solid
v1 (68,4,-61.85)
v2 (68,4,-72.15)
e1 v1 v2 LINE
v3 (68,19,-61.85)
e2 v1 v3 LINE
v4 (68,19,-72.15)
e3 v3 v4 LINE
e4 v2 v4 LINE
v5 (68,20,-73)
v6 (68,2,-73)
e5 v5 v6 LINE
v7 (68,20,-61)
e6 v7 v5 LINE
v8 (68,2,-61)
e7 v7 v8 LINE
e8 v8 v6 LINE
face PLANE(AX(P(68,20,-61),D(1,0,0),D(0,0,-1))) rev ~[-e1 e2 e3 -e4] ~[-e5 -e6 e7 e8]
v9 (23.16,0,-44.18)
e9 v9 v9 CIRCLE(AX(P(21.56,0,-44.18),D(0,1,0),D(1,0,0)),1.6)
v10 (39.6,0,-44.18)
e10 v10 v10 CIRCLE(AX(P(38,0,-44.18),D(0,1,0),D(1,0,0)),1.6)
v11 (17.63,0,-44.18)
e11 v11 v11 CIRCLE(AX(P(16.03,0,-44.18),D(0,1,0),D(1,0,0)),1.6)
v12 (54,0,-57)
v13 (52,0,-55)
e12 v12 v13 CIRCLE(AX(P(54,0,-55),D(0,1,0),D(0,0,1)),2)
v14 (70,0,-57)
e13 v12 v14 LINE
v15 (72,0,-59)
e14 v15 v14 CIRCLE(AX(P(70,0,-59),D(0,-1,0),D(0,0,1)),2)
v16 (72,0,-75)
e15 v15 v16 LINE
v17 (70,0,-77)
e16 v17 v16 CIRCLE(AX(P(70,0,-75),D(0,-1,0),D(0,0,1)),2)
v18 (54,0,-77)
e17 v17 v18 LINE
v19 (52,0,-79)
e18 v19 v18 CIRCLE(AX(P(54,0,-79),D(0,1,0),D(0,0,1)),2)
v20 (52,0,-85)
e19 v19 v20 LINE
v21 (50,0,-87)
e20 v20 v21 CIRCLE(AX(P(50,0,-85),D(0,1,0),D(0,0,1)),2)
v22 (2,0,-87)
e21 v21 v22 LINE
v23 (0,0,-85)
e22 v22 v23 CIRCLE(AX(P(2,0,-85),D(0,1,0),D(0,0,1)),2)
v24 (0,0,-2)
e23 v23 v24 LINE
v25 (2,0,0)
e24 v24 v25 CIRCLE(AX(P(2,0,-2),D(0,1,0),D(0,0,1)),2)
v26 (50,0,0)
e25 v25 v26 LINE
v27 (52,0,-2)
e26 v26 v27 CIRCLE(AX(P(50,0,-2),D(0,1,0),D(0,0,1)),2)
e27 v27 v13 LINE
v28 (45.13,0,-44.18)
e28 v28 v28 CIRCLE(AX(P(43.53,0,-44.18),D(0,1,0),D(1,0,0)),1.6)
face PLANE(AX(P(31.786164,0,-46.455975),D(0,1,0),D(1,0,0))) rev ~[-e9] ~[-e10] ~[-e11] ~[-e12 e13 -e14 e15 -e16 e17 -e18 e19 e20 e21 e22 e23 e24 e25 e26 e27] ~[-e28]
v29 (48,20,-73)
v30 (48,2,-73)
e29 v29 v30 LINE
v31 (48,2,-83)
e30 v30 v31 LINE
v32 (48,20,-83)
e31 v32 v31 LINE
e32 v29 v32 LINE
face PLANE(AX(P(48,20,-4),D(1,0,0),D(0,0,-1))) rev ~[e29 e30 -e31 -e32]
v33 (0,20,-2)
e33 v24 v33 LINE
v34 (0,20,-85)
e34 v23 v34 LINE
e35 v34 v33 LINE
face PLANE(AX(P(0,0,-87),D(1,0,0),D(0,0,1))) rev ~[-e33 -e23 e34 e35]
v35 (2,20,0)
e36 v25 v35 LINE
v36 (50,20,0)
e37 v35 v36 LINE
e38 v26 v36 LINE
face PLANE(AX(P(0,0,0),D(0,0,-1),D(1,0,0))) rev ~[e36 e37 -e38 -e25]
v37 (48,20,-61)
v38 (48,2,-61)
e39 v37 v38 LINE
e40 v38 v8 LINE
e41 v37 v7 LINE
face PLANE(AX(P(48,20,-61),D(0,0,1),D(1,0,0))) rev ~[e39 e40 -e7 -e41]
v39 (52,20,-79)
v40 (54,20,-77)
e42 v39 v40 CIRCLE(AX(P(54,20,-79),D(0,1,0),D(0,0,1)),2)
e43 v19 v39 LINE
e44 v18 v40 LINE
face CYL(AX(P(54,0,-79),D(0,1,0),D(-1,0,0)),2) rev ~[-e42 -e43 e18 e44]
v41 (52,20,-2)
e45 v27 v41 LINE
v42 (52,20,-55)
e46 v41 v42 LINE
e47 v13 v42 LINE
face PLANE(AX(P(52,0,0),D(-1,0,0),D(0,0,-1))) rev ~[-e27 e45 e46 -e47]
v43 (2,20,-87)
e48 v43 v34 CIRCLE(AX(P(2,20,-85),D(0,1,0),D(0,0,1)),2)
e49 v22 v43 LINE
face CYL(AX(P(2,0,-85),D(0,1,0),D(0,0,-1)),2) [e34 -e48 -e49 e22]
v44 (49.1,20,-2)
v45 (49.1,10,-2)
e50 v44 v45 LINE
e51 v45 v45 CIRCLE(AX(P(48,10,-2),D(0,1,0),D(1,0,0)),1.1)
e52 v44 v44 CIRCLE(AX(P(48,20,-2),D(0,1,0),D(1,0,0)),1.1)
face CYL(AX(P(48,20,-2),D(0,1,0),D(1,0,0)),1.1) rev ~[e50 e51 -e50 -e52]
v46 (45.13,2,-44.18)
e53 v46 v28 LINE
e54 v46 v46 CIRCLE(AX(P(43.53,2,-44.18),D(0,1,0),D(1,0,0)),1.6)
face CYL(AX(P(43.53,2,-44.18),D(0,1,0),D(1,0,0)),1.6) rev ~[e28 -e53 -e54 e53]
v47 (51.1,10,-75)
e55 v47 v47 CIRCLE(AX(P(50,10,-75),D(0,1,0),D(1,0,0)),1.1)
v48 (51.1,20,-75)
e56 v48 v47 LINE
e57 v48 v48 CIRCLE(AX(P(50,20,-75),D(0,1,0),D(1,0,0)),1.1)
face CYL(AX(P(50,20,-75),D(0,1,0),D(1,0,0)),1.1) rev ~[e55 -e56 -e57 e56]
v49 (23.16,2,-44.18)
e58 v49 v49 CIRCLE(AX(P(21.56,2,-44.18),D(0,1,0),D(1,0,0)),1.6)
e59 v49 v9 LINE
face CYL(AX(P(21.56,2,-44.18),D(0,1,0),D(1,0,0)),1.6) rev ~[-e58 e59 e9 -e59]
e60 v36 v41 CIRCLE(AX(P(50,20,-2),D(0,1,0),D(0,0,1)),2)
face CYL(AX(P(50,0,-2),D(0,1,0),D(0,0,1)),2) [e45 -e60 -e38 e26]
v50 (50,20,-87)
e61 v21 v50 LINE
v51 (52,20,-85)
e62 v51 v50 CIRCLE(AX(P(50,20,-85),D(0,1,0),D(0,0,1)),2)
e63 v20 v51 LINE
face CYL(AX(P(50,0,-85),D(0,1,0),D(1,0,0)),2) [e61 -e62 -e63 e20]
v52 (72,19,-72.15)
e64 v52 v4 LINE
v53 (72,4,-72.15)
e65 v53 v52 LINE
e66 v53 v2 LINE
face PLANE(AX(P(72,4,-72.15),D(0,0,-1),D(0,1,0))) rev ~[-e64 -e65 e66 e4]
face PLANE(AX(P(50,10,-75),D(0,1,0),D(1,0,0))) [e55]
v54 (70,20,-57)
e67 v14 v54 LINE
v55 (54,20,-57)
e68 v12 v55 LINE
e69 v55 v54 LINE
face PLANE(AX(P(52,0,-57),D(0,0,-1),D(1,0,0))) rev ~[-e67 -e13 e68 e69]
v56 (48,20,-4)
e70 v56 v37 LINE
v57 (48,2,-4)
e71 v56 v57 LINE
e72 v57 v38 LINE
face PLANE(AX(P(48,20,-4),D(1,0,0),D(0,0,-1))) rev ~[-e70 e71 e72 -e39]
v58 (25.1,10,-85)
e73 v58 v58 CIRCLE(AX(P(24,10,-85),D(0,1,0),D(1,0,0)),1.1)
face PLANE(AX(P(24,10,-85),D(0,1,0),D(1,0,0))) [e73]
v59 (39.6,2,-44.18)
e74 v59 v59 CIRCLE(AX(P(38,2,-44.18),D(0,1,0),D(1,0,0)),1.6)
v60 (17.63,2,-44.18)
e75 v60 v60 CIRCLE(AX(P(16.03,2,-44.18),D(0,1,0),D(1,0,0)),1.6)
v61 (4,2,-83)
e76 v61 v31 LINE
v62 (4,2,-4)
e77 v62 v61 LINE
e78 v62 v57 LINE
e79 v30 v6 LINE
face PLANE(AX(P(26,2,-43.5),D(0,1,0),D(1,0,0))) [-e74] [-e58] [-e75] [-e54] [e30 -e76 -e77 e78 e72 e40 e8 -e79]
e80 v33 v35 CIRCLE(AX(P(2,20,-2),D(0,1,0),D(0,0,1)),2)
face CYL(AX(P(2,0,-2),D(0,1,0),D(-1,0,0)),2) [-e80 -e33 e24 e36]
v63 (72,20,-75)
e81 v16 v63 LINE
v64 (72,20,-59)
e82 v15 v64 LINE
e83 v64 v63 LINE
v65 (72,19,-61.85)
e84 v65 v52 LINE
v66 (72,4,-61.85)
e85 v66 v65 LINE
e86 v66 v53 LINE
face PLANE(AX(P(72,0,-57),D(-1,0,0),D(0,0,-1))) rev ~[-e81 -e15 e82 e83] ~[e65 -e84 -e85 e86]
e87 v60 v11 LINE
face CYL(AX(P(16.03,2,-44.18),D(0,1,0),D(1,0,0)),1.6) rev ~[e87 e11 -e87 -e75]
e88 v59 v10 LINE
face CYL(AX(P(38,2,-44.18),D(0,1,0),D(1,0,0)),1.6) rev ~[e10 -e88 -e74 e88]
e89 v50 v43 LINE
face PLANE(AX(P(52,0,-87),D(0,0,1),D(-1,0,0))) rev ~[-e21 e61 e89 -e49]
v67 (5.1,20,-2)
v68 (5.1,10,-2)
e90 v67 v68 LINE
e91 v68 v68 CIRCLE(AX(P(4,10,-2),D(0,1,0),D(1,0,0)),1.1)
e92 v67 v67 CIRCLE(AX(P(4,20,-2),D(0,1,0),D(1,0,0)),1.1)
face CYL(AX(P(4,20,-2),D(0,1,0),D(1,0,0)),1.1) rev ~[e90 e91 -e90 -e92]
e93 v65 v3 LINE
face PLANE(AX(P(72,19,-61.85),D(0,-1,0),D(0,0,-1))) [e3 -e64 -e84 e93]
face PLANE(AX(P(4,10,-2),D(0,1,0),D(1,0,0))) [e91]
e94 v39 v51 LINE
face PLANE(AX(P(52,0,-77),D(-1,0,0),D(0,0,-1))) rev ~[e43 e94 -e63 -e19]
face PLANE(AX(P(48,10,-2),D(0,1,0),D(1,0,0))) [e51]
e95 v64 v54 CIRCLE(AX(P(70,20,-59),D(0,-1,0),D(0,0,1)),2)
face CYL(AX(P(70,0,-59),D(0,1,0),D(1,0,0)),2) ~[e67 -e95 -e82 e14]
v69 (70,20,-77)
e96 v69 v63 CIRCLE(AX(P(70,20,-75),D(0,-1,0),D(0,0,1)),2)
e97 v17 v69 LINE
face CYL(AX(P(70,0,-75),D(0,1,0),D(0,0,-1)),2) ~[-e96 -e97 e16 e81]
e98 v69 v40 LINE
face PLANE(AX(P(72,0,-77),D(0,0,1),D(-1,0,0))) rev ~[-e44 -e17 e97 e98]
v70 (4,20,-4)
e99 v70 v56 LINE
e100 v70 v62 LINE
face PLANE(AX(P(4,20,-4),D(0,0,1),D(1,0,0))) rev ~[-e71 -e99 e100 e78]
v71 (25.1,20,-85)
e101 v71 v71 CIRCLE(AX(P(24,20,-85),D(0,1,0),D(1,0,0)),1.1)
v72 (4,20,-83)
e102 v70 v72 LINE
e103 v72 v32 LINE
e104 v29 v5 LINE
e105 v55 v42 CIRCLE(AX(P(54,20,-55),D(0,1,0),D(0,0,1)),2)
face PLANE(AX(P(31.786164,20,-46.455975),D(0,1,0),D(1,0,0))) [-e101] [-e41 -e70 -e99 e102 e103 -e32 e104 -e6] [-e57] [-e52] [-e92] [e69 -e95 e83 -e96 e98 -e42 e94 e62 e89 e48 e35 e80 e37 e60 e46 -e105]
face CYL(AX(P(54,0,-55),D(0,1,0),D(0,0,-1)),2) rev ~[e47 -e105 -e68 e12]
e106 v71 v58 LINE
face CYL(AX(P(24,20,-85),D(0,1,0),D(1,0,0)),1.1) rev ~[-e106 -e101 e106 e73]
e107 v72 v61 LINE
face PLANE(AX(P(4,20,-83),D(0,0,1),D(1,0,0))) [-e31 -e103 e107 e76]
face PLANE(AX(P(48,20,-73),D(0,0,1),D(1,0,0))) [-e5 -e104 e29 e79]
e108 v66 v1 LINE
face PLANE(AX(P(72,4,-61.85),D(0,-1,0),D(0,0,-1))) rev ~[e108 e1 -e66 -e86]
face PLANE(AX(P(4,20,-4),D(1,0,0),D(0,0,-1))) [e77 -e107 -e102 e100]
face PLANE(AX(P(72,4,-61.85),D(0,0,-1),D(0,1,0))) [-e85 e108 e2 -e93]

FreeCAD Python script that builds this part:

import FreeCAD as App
import Part
import Sketcher

V = App.Vector
Q = App.Units.Quantity


def edges_at(feature, points):
    """Names of the edges that pass closest to the given points."""
    edges = feature.Shape.Edges
    near = lambda p: min(range(len(edges)), key=lambda i: edges[i].distToShape(Part.Vertex(*p))[0])
    return sorted({f"Edge{near(p) + 1}" for p in points})


def add_polygon(sketch, points):
    """Adds a closed chain of lines whose ends are joined by coincident constraints."""
    first, n = sketch.GeometryCount, len(points)
    for a, b in zip(points, points[1:] + points[:1]):
        sketch.addGeometry(Part.LineSegment(App.Vector(*a, 0), App.Vector(*b, 0)), False)
    for i in range(n):
        sketch.addConstraint(Sketcher.Constraint("Coincident", first + i, 2, first + (i + 1) % n, 1))

doc = App.newDocument("Part")
body = doc.addObject("PartDesign::Body", "Body")

# Sketch on XZ plane
sketch1 = body.newObject("Sketcher::SketchObject", "Sketch")
sketch1.AttachmentSupport = (doc.getObject("XZ_Plane"), [""])
sketch1.MapMode = "FlatFace"
add_polygon(sketch1, [(52, -77), (52, -87), (0, -87), (0, 0), (52, 0), (52, -57), (72, -57), (72, -77)])  # lines 0-7
sketch1.addConstraint([
    Sketcher.Constraint("Vertical", 0),
    Sketcher.Constraint("Horizontal", 1),
    Sketcher.Constraint("Vertical", 2),
    Sketcher.Constraint("Horizontal", 3),
    Sketcher.Constraint("Vertical", 4),
    Sketcher.Constraint("Horizontal", 5),
    Sketcher.Constraint("Vertical", 6),
    Sketcher.Constraint("Horizontal", 7),
    Sketcher.Constraint("Coincident", 2, 2, -1, 1),
    Sketcher.Constraint("Vertical", 0, 2, 3, 2),
    Sketcher.Constraint("Equal", 7, 6),
    Sketcher.Constraint("DistanceX", 1, 2, 1, 1, Q("52 mm")),
    Sketcher.Constraint("DistanceX", 5, 1, 5, 2, Q("20 mm")),
    Sketcher.Constraint("DistanceY", 0, 2, 0, 1, Q("10 mm")),
    Sketcher.Constraint("DistanceY", 2, 1, 2, 2, Q("87 mm")),
])
pad1 = body.newObject("PartDesign::Pad", "Pad")
pad1.Profile = sketch1
pad1.Length = 20
pad1.Reversed = True

# Sketch on XZ plane
sketch2 = body.newObject("Sketcher::SketchObject", "Sketch001")
sketch2.AttachmentSupport = (doc.getObject("XZ_Plane"), [""])
sketch2.MapMode = "FlatFace"
sketch2.AttachmentOffset = App.Placement(V(0, 0, -20), App.Rotation())
add_polygon(sketch2, [(4, -83), (4, -4), (48, -4), (48, -83)])  # lines 0-3
sketch2.addConstraint([
    Sketcher.Constraint("Vertical", 0),
    Sketcher.Constraint("Horizontal", 1),
    Sketcher.Constraint("Vertical", 2),
    Sketcher.Constraint("Horizontal", 3),
    Sketcher.Constraint("DistanceX", 1, 1, 1, 2, Q("44 mm")),
    Sketcher.Constraint("DistanceY", 0, 1, 0, 2, Q("79 mm")),
    Sketcher.Constraint("DistanceX", -1, 1, 0, 2, Q("4 mm")),
    Sketcher.Constraint("DistanceY", 0, 2, -1, 1, Q("4 mm")),
])
pocket1 = body.newObject("PartDesign::Pocket", "Pocket")
pocket1.Profile = sketch2
pocket1.Length = 18
pocket1.Reversed = True

# Sketch on XZ plane
sketch3 = body.newObject("Sketcher::SketchObject", "Sketch002")
sketch3.AttachmentSupport = (doc.getObject("XZ_Plane"), [""])
sketch3.MapMode = "FlatFace"
sketch3.AttachmentOffset = App.Placement(V(0, 0, -20), App.Rotation())
add_polygon(sketch3, [(48, -73), (48, -61), (68, -61), (68, -73)])  # lines 0-3
sketch3.addConstraint([
    Sketcher.Constraint("Vertical", 0),
    Sketcher.Constraint("Horizontal", 1),
    Sketcher.Constraint("Vertical", 2),
    Sketcher.Constraint("Horizontal", 3),
    Sketcher.Constraint("DistanceX", 1, 1, 1, 2, Q("20 mm")),
    Sketcher.Constraint("DistanceY", 0, 1, 0, 2, Q("12 mm")),
    Sketcher.Constraint("DistanceX", -1, 1, 0, 2, Q("48 mm")),
    Sketcher.Constraint("DistanceY", 0, 2, -1, 1, Q("61 mm")),
])
pocket2 = body.newObject("PartDesign::Pocket", "Pocket001")
pocket2.Profile = sketch3
pocket2.Length = 18
pocket2.Reversed = True

# Sketch on XZ plane
sketch4 = body.newObject("Sketcher::SketchObject", "Sketch003")
sketch4.AttachmentSupport = (doc.getObject("XZ_Plane"), [""])
sketch4.MapMode = "FlatFace"
sketch4.AttachmentOffset = App.Placement(V(0, 0, -20), App.Rotation())
sketch4.addGeometry([
    Part.Circle(V(4, -2, 0), V(0, 0, 1), 1.1),
    Part.Circle(V(48, -2, 0), V(0, 0, 1), 1.1),
    Part.Circle(V(24, -85, 0), V(0, 0, 1), 1.1),
    Part.Circle(V(50, -75, 0), V(0, 0, 1), 1.1),
], False)
sketch4.addConstraint([
    Sketcher.Constraint("Equal", 0, 1),
    Sketcher.Constraint("Equal", 1, 2),
    Sketcher.Constraint("Equal", 2, 3),
    Sketcher.Constraint("Horizontal", 0, 3, 1, 3),
    Sketcher.Constraint("Diameter", 0, Q("2.2 mm")),
    Sketcher.Constraint("DistanceX", -1, 1, 0, 3, Q("4 mm")),
    Sketcher.Constraint("DistanceY", 0, 3, -1, 1, Q("2 mm")),
    Sketcher.Constraint("DistanceX", -1, 1, 1, 3, Q("48 mm")),
    Sketcher.Constraint("DistanceX", -1, 1, 2, 3, Q("24 mm")),
    Sketcher.Constraint("DistanceY", 2, 3, -1, 1, Q("85 mm")),
    Sketcher.Constraint("DistanceX", -1, 1, 3, 3, Q("50 mm")),
    Sketcher.Constraint("DistanceY", 3, 3, -1, 1, Q("75 mm")),
])
pocket3 = body.newObject("PartDesign::Pocket", "Pocket002")
pocket3.Profile = sketch4
pocket3.Length = 10
pocket3.Reversed = True

# Sketch on YZ plane
sketch5 = body.newObject("Sketcher::SketchObject", "Sketch004")
sketch5.AttachmentSupport = (doc.getObject("YZ_Plane"), [""])
sketch5.MapMode = "FlatFace"
sketch5.AttachmentOffset = App.Placement(V(0, 0, 72), App.Rotation())
add_polygon(sketch5, [(19, -62), (4, -62), (4, -72), (19, -72)])  # lines 0-3
sketch5.addConstraint([
    Sketcher.Constraint("Horizontal", 0),
    Sketcher.Constraint("Vertical", 1),
    Sketcher.Constraint("Horizontal", 2),
    Sketcher.Constraint("Vertical", 3),
    Sketcher.Constraint("DistanceX", 0, 2, 0, 1, Q("15 mm")),
    Sketcher.Constraint("DistanceY", 1, 2, 1, 1, Q("10.3 mm")),
    Sketcher.Constraint("DistanceX", -1, 1, 0, 2, Q("4 mm")),
    Sketcher.Constraint("DistanceY", 0, 2, -1, 1, Q("61.85 mm")),
])
pocket4 = body.newObject("PartDesign::Pocket", "Pocket003")
pocket4.Profile = sketch5
pocket4.Length = 5

# Sketch on XZ plane
sketch6 = body.newObject("Sketcher::SketchObject", "Sketch005")
sketch6.AttachmentSupport = (doc.getObject("XZ_Plane"), [""])
sketch6.MapMode = "FlatFace"
sketch6.AttachmentOffset = App.Placement(V(0, 0, -2), App.Rotation())
sketch6.addGeometry([
    Part.Circle(V(21.6, -44.2, 0), V(0, 0, 1), 1.6),
    Part.Circle(V(43.5, -44.2, 0), V(0, 0, 1), 1.6),
    Part.Circle(V(38, -44.2, 0), V(0, 0, 1), 1.6),
    Part.Circle(V(16, -44.2, 0), V(0, 0, 1), 1.6),
], False)
sketch6.addConstraint([
    Sketcher.Constraint("Equal", 0, 1),
    Sketcher.Constraint("Equal", 1, 2),
    Sketcher.Constraint("Equal", 2, 3),
    Sketcher.Constraint("Horizontal", 0, 3, 1, 3),
    Sketcher.Constraint("Horizontal", 1, 3, 2, 3),
    Sketcher.Constraint("Horizontal", 2, 3, 3, 3),
    Sketcher.Constraint("Diameter", 0, Q("3.2 mm")),
    Sketcher.Constraint("DistanceX", -1, 1, 2, 3, Q("38 mm")),
    Sketcher.Constraint("DistanceX", 3, 3, 1, 3, Q("27.5 mm")),
    Sketcher.Constraint("DistanceX", -1, 1, 0, 3, Q("21.56 mm")),
    Sketcher.Constraint("DistanceY", 0, 3, -1, 1, Q("44.18 mm")),
    Sketcher.Constraint("DistanceX", -1, 1, 1, 3, Q("43.53 mm")),
])
pocket5 = body.newObject("PartDesign::Pocket", "Pocket004")
pocket5.Profile = sketch6
pocket5.Length = 6
pocket5.Reversed = True
doc.recompute()

fillet = body.newObject("PartDesign::Fillet", "Fillet")
fillet.Base = (pocket5, edges_at(pocket5, [
    (0, 10, -87),
    (52, 10, -87),
    (52, 10, -77),
    (72, 10, -77),
    (72, 10, -57),
    (52, 10, -57),
    (52, 10, 0),
    (0, 10, 0),
]))
fillet.Radius = 2

doc.recompute()
